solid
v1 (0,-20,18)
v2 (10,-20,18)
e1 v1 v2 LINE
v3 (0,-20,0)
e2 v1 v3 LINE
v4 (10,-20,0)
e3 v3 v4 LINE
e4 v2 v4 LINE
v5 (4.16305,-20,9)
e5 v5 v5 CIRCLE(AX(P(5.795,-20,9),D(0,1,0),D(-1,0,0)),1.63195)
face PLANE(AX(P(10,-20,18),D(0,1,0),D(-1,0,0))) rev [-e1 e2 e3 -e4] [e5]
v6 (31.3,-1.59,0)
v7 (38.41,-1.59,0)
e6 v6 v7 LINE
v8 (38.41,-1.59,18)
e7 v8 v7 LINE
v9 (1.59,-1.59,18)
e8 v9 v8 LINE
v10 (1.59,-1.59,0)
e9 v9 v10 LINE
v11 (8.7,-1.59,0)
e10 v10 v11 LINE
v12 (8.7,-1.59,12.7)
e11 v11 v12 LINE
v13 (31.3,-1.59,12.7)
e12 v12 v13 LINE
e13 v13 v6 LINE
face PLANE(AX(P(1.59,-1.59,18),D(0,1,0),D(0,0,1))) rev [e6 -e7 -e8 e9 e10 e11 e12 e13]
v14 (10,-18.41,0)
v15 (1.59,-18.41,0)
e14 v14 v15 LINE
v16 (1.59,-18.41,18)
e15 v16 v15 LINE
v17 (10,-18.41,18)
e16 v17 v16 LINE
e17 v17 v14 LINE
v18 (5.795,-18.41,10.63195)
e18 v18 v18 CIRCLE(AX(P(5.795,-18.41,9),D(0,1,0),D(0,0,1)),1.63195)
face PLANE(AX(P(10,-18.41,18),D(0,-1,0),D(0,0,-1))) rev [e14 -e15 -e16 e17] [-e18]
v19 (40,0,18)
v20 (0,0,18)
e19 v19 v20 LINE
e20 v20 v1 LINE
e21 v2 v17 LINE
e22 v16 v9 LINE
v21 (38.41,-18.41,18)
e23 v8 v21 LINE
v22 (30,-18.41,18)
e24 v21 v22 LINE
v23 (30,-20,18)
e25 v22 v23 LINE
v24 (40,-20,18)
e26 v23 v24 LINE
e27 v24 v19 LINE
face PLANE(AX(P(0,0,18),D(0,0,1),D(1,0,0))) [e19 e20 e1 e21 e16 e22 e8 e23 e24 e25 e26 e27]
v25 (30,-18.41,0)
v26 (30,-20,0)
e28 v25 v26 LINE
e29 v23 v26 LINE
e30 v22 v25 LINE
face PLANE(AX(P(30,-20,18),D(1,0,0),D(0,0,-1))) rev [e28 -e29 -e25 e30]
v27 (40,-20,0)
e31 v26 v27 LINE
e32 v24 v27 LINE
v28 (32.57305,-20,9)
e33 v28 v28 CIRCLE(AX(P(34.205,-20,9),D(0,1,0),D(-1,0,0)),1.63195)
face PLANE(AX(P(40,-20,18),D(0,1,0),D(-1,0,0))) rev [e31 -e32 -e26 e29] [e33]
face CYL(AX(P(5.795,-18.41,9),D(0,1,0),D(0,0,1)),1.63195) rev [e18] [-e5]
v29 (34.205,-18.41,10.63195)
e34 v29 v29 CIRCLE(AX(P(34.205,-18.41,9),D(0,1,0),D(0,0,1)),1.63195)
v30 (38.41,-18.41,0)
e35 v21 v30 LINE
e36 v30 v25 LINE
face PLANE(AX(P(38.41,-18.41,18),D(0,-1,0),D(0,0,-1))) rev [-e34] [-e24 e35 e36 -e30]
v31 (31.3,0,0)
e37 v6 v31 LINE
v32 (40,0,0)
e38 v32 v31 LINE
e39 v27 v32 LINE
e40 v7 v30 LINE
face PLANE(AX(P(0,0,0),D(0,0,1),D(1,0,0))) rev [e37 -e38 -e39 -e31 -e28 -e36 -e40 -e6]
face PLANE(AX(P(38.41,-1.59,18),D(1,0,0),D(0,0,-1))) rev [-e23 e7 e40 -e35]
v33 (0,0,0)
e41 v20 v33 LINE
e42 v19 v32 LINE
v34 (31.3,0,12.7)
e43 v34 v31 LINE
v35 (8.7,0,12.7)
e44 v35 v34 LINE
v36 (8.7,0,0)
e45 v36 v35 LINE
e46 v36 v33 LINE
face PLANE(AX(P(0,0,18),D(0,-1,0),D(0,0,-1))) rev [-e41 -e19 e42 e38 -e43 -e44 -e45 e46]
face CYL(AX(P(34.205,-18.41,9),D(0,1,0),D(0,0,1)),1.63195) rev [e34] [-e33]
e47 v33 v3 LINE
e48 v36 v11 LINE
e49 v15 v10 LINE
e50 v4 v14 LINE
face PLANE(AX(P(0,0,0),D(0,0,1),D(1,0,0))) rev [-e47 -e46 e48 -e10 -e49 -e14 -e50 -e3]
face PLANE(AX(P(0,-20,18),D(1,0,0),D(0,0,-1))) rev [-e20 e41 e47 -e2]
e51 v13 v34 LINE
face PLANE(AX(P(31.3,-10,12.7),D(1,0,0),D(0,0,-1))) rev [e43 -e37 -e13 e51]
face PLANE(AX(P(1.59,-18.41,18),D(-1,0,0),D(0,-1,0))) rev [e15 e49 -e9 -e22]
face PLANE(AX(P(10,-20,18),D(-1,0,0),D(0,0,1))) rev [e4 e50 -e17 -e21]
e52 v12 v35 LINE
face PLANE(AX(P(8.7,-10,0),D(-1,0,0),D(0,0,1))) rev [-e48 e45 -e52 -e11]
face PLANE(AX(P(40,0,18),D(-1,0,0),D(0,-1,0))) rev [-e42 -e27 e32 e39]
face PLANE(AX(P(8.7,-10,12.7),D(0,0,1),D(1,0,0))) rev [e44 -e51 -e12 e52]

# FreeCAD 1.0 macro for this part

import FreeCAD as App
import Part
import Sketcher

V = App.Vector
Q = App.Units.Quantity


def add_polygon(sketch, points):
    """Adds a closed chain of lines whose ends are joined by coincident constraints."""
    first, n = sketch.GeometryCount, len(points)
    for a, b in zip(points, points[1:] + points[:1]):
        sketch.addGeometry(Part.LineSegment(App.Vector(*a, 0), App.Vector(*b, 0)), False)
    for i in range(n):
        sketch.addConstraint(Sketcher.Constraint("Coincident", first + i, 2, first + (i + 1) % n, 1))

doc = App.newDocument("Part")
body = doc.addObject("PartDesign::Body", "Body")

# Sketch on XY plane
sketch1 = body.newObject("Sketcher::SketchObject", "Sketch")
sketch1.AttachmentSupport = (doc.getObject("XY_Plane"), [""])
sketch1.MapMode = "FlatFace"
add_polygon(sketch1, [(0, -20), (10, -20), (10, -18.41), (1.59, -18.41), (1.59, -1.59), (38.41, -1.59), (38.41, -18.41), (30, -18.41), (30, -20), (40, -20), (40, 0), (0, 0)])  # lines 0-11
sketch1.addConstraint([
    Sketcher.Constraint("Horizontal", 0),
    Sketcher.Constraint("Vertical", 1),
    Sketcher.Constraint("Horizontal", 2),
    Sketcher.Constraint("Vertical", 3),
    Sketcher.Constraint("Horizontal", 4),
    Sketcher.Constraint("Vertical", 5),
    Sketcher.Constraint("Horizontal", 6),
    Sketcher.Constraint("Vertical", 7),
    Sketcher.Constraint("Horizontal", 8),
    Sketcher.Constraint("Vertical", 9),
    Sketcher.Constraint("Horizontal", 10),
    Sketcher.Constraint("Vertical", 11),
    Sketcher.Constraint("Coincident", 10, 2, -1, 1),
    Sketcher.Constraint("Horizontal", 2, 2, 5, 2),
    Sketcher.Constraint("Horizontal", 0, 2, 7, 2),
    Sketcher.Constraint("Equal", 2, 6),
    Sketcher.Constraint("Equal", 0, 8),
    Sketcher.Constraint("DistanceX", 0, 1, 0, 2, Q("10 mm")),
    Sketcher.Constraint("DistanceX", 10, 2, 10, 1, Q("40 mm")),
    Sketcher.Constraint("DistanceY", 9, 1, 9, 2, Q("20 mm")),
    Sketcher.Constraint("DistanceX", 2, 2, 2, 1, Q("8.41 mm")),
    Sketcher.Constraint("DistanceY", 1, 1, 1, 2, Q("1.59 mm")),
    Sketcher.Constraint("DistanceY", 3, 1, 3, 2, Q("16.82 mm")),
])
pad1 = body.newObject("PartDesign::Pad", "Pad")
pad1.Profile = sketch1
pad1.Length = 18

# Sketch on XZ plane
sketch2 = body.newObject("Sketcher::SketchObject", "Sketch001")
sketch2.AttachmentSupport = (doc.getObject("XZ_Plane"), [""])
sketch2.MapMode = "FlatFace"
add_polygon(sketch2, [(8.7, 0), (8.7, 12.7), (31.3, 12.7), (31.3, 0)])  # lines 0-3
sketch2.addConstraint([
    Sketcher.Constraint("Vertical", 0),
    Sketcher.Constraint("Horizontal", 1),
    Sketcher.Constraint("Vertical", 2),
    Sketcher.Constraint("Horizontal", 3),
    Sketcher.Constraint("PointOnObject", 2, 2, -1),
    Sketcher.Constraint("DistanceX", 1, 1, 1, 2, Q("22.6 mm")),
    Sketcher.Constraint("DistanceY", 0, 1, 0, 2, Q("12.7 mm")),
    Sketcher.Constraint("DistanceX", -1, 1, 0, 2, Q("8.7 mm")),
])
pocket1 = body.newObject("PartDesign::Pocket", "Pocket")
pocket1.Profile = sketch2
pocket1.Length = 10
pocket1.Reversed = True

# Sketch on XZ plane
sketch3 = body.newObject("Sketcher::SketchObject", "Sketch002")
sketch3.AttachmentSupport = (doc.getObject("XZ_Plane"), [""])
sketch3.MapMode = "FlatFace"
sketch3.AttachmentOffset = App.Placement(V(0, 0, 18.41), App.Rotation())
sketch3.addGeometry([
    Part.Circle(V(5.795, 9, 0), V(0, 0, 1), 1.63195),
    Part.Circle(V(34.205, 9, 0), V(0, 0, 1), 1.63195),
], False)
sketch3.addConstraint([
    Sketcher.Constraint("Equal", 0, 1),
    Sketcher.Constraint("Horizontal", 0, 3, 1, 3),
    Sketcher.Constraint("DistanceY", -1, 1, 0, 3, Q("9 mm")),
    Sketcher.Constraint("Diameter", 0, Q("3.2639 mm")),
    Sketcher.Constraint("DistanceX", 0, 3, 1, 3, Q("28.41 mm")),
    Sketcher.Constraint("DistanceX", -1, 1, 0, 3, Q("5.795 mm")),
])
doc.recompute()
hole = body.newObject("PartDesign::Hole", "Hole")
hole.Profile = sketch3
hole.ThreadType = "None"
hole.Diameter = 3.2639
hole.DepthType = "Dimension"
hole.Depth = 1.59
hole.DrillPoint = "Flat"
hole.Reversed = True

doc.recompute()
